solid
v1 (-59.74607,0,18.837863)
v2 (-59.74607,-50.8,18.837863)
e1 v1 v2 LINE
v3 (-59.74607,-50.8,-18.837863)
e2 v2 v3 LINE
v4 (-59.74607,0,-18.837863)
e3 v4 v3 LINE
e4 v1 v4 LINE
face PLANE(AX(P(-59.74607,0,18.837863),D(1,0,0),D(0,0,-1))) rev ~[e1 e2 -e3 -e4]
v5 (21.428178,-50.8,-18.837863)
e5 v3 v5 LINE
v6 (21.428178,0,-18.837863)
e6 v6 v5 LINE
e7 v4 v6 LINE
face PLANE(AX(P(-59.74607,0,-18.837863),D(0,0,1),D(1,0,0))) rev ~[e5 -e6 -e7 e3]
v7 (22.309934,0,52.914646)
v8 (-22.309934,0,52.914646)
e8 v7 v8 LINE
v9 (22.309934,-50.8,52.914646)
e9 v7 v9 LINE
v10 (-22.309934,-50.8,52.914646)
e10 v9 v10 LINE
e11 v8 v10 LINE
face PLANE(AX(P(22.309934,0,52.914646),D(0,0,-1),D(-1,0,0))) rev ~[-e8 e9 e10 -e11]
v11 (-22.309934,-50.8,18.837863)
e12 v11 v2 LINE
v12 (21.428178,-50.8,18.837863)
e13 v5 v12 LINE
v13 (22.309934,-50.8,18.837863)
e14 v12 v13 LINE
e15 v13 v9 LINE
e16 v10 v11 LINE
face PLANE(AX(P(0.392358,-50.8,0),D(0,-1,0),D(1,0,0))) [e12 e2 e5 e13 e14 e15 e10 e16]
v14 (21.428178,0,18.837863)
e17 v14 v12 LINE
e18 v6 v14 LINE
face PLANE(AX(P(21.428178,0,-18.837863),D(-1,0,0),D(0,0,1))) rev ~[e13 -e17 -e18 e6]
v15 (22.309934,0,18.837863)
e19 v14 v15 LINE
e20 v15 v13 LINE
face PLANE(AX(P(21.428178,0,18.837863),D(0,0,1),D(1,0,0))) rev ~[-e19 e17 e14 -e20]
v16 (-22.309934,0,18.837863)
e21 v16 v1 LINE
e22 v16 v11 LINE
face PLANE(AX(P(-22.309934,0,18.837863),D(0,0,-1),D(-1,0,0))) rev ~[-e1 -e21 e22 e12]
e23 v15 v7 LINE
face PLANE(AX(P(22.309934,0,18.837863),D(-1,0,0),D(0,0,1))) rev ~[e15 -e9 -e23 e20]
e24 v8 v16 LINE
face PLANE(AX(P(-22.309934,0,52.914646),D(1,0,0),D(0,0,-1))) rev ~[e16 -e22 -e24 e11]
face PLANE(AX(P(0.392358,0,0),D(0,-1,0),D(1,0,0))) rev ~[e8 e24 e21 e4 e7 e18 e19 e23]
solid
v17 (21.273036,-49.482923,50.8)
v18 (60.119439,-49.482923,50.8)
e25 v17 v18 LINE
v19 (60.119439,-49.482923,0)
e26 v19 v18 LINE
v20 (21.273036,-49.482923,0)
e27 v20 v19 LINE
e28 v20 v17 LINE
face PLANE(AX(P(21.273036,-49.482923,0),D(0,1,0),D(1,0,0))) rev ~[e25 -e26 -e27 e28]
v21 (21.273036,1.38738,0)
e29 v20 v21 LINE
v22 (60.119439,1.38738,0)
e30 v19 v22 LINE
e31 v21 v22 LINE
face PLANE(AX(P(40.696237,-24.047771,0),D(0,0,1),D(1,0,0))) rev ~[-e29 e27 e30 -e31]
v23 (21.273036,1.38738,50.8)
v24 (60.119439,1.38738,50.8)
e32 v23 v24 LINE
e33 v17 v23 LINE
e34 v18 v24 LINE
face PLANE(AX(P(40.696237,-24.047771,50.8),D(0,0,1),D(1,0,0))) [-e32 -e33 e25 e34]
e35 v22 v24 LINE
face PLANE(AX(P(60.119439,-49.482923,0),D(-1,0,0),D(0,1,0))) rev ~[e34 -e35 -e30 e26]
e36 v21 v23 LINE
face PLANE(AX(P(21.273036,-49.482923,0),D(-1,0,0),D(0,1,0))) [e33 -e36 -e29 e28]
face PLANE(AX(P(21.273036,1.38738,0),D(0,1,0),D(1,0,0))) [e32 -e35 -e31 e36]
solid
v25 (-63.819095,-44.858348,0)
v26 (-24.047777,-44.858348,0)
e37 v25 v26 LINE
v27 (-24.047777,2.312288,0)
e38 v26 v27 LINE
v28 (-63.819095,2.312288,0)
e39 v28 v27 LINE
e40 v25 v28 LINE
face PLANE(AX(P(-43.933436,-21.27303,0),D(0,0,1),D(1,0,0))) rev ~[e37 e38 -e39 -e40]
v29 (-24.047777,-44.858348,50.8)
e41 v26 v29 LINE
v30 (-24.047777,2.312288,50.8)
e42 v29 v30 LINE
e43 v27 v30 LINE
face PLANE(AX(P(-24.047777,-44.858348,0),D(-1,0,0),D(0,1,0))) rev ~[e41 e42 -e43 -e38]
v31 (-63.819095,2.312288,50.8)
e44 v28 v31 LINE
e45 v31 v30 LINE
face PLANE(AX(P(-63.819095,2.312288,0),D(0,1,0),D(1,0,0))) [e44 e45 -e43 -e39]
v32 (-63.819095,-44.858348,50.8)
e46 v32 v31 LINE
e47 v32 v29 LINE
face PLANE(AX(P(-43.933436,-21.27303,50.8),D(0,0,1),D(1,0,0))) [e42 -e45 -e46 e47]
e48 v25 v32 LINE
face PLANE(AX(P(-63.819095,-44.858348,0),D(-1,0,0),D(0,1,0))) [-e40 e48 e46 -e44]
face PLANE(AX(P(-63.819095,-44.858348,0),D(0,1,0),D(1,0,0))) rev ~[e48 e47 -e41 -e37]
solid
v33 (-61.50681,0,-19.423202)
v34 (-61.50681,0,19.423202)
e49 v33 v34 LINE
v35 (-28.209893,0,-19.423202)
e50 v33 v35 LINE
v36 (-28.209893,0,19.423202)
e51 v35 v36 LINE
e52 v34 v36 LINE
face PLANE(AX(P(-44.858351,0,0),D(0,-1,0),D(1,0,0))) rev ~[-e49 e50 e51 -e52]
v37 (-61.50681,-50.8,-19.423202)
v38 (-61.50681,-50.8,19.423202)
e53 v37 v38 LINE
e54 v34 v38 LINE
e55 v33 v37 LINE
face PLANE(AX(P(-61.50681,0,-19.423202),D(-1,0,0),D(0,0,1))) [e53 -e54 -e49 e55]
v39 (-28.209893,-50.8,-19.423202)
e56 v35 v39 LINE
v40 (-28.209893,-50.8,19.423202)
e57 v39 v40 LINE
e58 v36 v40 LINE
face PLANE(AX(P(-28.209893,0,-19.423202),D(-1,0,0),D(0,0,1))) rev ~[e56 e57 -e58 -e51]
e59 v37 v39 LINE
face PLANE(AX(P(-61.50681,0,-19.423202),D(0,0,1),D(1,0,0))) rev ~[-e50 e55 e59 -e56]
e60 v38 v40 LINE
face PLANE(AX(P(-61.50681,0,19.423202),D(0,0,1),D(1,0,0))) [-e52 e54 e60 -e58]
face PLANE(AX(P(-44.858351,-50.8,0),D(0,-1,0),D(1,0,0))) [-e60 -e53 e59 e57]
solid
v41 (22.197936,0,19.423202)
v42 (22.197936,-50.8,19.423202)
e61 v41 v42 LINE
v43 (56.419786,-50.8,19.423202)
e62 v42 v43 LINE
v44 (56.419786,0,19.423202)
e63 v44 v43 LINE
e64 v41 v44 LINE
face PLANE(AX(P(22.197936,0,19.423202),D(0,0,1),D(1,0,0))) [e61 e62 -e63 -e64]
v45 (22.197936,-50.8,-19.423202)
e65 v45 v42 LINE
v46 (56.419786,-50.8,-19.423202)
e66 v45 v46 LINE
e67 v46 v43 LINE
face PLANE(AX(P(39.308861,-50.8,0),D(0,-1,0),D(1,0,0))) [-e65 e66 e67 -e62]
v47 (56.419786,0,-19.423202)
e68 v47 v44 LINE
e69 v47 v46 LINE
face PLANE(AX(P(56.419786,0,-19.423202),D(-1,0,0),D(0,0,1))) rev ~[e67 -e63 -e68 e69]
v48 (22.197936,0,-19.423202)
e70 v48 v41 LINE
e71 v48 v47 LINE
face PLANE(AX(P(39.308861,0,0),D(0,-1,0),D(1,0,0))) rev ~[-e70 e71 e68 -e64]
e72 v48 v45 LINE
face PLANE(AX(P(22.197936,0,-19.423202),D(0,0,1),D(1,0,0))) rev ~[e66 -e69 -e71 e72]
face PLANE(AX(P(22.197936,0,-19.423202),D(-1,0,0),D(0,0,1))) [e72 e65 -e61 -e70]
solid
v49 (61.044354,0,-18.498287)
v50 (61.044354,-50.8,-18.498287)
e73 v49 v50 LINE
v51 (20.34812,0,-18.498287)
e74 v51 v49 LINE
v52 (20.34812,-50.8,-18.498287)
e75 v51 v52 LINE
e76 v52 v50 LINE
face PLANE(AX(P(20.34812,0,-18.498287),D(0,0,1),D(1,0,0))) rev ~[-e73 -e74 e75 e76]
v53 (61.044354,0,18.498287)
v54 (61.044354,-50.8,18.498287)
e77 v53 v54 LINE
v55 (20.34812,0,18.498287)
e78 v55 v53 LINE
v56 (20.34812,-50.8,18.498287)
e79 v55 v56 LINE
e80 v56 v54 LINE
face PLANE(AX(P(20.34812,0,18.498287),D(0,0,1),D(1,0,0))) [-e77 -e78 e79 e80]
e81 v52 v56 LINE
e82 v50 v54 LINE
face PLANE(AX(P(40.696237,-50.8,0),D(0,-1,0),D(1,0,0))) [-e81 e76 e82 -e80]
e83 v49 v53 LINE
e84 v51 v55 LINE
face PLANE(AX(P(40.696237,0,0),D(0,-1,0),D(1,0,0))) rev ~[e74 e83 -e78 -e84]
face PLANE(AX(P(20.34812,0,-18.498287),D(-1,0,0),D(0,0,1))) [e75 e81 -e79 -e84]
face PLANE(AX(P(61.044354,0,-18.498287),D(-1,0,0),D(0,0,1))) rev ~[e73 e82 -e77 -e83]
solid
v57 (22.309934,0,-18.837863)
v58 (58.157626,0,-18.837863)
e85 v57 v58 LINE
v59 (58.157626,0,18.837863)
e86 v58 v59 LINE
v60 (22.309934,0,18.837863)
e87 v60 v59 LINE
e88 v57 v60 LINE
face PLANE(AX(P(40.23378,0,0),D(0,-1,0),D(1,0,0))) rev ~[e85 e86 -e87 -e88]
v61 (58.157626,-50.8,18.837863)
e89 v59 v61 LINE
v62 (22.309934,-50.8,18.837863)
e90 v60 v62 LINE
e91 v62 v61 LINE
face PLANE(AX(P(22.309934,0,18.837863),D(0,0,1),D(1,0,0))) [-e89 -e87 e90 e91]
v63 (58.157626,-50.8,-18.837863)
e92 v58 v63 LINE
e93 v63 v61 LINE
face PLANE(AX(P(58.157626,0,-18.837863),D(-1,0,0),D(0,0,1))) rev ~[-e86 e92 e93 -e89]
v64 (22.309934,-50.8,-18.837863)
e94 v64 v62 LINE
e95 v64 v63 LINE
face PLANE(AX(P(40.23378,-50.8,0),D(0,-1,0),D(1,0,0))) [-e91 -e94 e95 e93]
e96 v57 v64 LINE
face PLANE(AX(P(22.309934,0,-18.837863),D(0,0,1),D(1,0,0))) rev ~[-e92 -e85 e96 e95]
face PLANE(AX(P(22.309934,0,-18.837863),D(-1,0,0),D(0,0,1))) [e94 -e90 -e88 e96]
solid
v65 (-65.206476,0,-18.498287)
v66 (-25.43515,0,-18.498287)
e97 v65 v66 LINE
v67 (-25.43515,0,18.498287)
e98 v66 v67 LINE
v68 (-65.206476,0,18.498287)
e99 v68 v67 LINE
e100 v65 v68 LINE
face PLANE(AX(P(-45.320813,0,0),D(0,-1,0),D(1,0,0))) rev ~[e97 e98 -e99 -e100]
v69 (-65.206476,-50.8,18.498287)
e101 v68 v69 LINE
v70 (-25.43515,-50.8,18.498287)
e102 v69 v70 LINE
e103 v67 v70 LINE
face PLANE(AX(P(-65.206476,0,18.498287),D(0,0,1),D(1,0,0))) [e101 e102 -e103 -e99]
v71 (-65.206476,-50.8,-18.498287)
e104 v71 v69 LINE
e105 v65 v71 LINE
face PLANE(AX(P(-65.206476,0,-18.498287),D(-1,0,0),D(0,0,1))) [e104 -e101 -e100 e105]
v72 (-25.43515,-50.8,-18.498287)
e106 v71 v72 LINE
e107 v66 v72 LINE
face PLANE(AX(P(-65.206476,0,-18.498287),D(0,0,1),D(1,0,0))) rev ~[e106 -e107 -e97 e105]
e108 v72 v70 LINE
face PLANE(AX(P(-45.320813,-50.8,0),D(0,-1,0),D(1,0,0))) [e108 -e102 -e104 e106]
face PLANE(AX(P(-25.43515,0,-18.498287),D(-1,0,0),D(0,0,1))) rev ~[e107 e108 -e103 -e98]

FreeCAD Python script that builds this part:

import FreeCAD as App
import Part
import Sketcher
Q = App.Units.Quantity


def add_polygon(sketch, points):
    """Adds a closed chain of lines whose ends are joined by coincident constraints."""
    first, n = sketch.GeometryCount, len(points)
    for a, b in zip(points, points[1:] + points[:1]):
        sketch.addGeometry(Part.LineSegment(App.Vector(*a, 0), App.Vector(*b, 0)), False)
    for i in range(n):
        sketch.addConstraint(Sketcher.Constraint("Coincident", first + i, 2, first + (i + 1) % n, 1))

doc = App.newDocument("Part")
body = doc.addObject("PartDesign::Body", "Body")

# Sketch on XZ plane
sketch1 = doc.addObject("Sketcher::SketchObject", "Sketch")
body.addObject(sketch1)
sketch1.AttachmentSupport = (doc.XZ_Plane, [""])
sketch1.MapMode = "FlatFace"
add_polygon(sketch1, [(22, 19), (22, -19), (58, -19), (58, 19)])  # lines 0-3
sketch1.addConstraint([
    Sketcher.Constraint("Vertical", 0),
    Sketcher.Constraint("Horizontal", 1),
    Sketcher.Constraint("Vertical", 2),
    Sketcher.Constraint("Horizontal", 3),
    Sketcher.Constraint("DistanceX", 1, 1, 1, 2, 35.847692),
    Sketcher.Constraint("DistanceY", 0, 2, 0, 1, 37.675725),
    Sketcher.Constraint("DistanceX", -1, 1, 0, 2, 22.309934),
    Sketcher.Constraint("DistanceY", 0, 2, -1, 1, 18.837863),
])
pad1 = doc.addObject("PartDesign::Pad", "Pad")
body.addObject(pad1)
pad1.Profile = sketch1
pad1.Length = Q("2 in")
body2 = doc.addObject("PartDesign::Body", "Body001")

# Sketch on XZ plane
sketch2 = doc.addObject("Sketcher::SketchObject", "Sketch001")
body2.addObject(sketch2)
sketch2.AttachmentSupport = (doc.getObject("XZ_Plane001"), [""])
sketch2.MapMode = "FlatFace"
add_polygon(sketch2, [(21.4, -18.8), (21.4, 18.8), (22.3, 18.8), (22.3, 52.9), (-22.3, 52.9), (-22.3, 18.8), (-59.7, 18.8), (-59.7, -18.8)])  # lines 0-7
sketch2.addConstraint([
    Sketcher.Constraint("Vertical", 0),
    Sketcher.Constraint("Horizontal", 1),
    Sketcher.Constraint("Vertical", 2),
    Sketcher.Constraint("Horizontal", 3),
    Sketcher.Constraint("Vertical", 4),
    Sketcher.Constraint("Horizontal", 5),
    Sketcher.Constraint("Vertical", 6),
    Sketcher.Constraint("Horizontal", 7),
    Sketcher.Constraint("Symmetric", 1, 2, 4, 2, -2),
    Sketcher.Constraint("DistanceX", 1, 1, 1, 2, 0.881755),
    Sketcher.Constraint("DistanceX", 3, 2, 3, 1, 44.619867),
    Sketcher.Constraint("DistanceX", 5, 2, 5, 1, 37.436136),
    Sketcher.Constraint("DistanceY", 0, 1, 0, 2, 37.675725),
    Sketcher.Constraint("DistanceY", 2, 1, 2, 2, 34.076783),
    Sketcher.Constraint("DistanceY", -1, 1, 0, 2, 18.837863),
])
pad2 = doc.addObject("PartDesign::Pad", "Pad001")
body2.addObject(pad2)
pad2.Profile = sketch2
pad2.Length = Q("2 in")
body3 = doc.addObject("PartDesign::Body", "Body002")

# Sketch on XZ plane
sketch3 = doc.addObject("Sketcher::SketchObject", "Sketch002")
body3.addObject(sketch3)
sketch3.AttachmentSupport = (doc.getObject("XZ_Plane002"), [""])
sketch3.MapMode = "FlatFace"
add_polygon(sketch3, [(-65, 18), (-65, -18), (-25, -18), (-25, 18)])  # lines 0-3
sketch3.addConstraint([
    Sketcher.Constraint("Vertical", 0),
    Sketcher.Constraint("Horizontal", 1),
    Sketcher.Constraint("Vertical", 2),
    Sketcher.Constraint("Horizontal", 3),
    Sketcher.Constraint("DistanceX", 1, 1, 1, 2, 39.771326),
    Sketcher.Constraint("DistanceY", 0, 2, 0, 1, 36.996573),
    Sketcher.Constraint("DistanceX", 1, 2, -1, 1, 25.43515),
    Sketcher.Constraint("DistanceY", 0, 2, -1, 1, 18.498287),
])
pad3 = doc.addObject("PartDesign::Pad", "Pad002")
body3.addObject(pad3)
pad3.Profile = sketch3
pad3.Length = Q("2 in")
body4 = doc.addObject("PartDesign::Body", "Body003")

# Sketch on XZ plane
sketch4 = doc.addObject("Sketcher::SketchObject", "Sketch003")
body4.addObject(sketch4)
sketch4.AttachmentSupport = (doc.getObject("XZ_Plane003"), [""])
sketch4.MapMode = "FlatFace"
add_polygon(sketch4, [(20, 18), (20, -18), (61, -18), (61, 18)])  # lines 0-3
sketch4.addConstraint([
    Sketcher.Constraint("Vertical", 0),
    Sketcher.Constraint("Horizontal", 1),
    Sketcher.Constraint("Vertical", 2),
    Sketcher.Constraint("Horizontal", 3),
    Sketcher.Constraint("DistanceX", 1, 1, 1, 2, 40.696234),
    Sketcher.Constraint("DistanceY", 0, 2, 0, 1, 36.996573),
    Sketcher.Constraint("DistanceX", -1, 1, 0, 2, 20.34812),
    Sketcher.Constraint("DistanceY", 0, 2, -1, 1, 18.498287),
])
pad4 = doc.addObject("PartDesign::Pad", "Pad003")
body4.addObject(pad4)
pad4.Profile = sketch4
pad4.Length = Q("2 in")
body5 = doc.addObject("PartDesign::Body", "Body004")

# Sketch on XZ plane
sketch5 = doc.addObject("Sketcher::SketchObject", "Sketch004")
body5.addObject(sketch5)
sketch5.AttachmentSupport = (doc.getObject("XZ_Plane004"), [""])
sketch5.MapMode = "FlatFace"
add_polygon(sketch5, [(-62, 19), (-62, -19), (-28, -19), (-28, 19)])  # lines 0-3
sketch5.addConstraint([
    Sketcher.Constraint("Vertical", 0),
    Sketcher.Constraint("Horizontal", 1),
    Sketcher.Constraint("Vertical", 2),
    Sketcher.Constraint("Horizontal", 3),
    Sketcher.Constraint("DistanceY", 0, 2, -1, 1, 19.423202),
    Sketcher.Constraint("DistanceY", -1, 1, 2, 2, 19.423202),
    Sketcher.Constraint("DistanceX", 1, 1, 1, 2, 33.296917),
    Sketcher.Constraint("DistanceX", 0, 2, -1, 1, 61.50681),
])
pad5 = doc.addObject("PartDesign::Pad", "Pad004")
body5.addObject(pad5)
pad5.Profile = sketch5
pad5.Length = Q("2 in")
body6 = doc.addObject("PartDesign::Body", "Body005")

# Sketch on XZ plane
sketch6 = doc.addObject("Sketcher::SketchObject", "Sketch005")
body6.addObject(sketch6)
sketch6.AttachmentSupport = (doc.getObject("XZ_Plane005"), [""])
sketch6.MapMode = "FlatFace"
add_polygon(sketch6, [(22, 19), (22, -19), (56, -19), (56, 19)])  # lines 0-3
sketch6.addConstraint([
    Sketcher.Constraint("Vertical", 0),
    Sketcher.Constraint("Horizontal", 1),
    Sketcher.Constraint("Vertical", 2),
    Sketcher.Constraint("Horizontal", 3),
    Sketcher.Constraint("DistanceX", 1, 1, 1, 2, 34.22185),
    Sketcher.Constraint("DistanceY", 0, 2, -1, 1, 19.423202),
    Sketcher.Constraint("DistanceY", -1, 1, 2, 2, 19.423202),
    Sketcher.Constraint("DistanceX", -1, 1, 0, 2, 22.197936),
])
pad6 = doc.addObject("PartDesign::Pad", "Pad005")
body6.addObject(pad6)
pad6.Profile = sketch6
pad6.Length = Q("2 in")
body7 = doc.addObject("PartDesign::Body", "Body006")

# Sketch on XY plane
sketch7 = doc.addObject("Sketcher::SketchObject", "Sketch006")
body7.addObject(sketch7)
sketch7.AttachmentSupport = (doc.getObject("XY_Plane006"), [""])
sketch7.MapMode = "FlatFace"
add_polygon(sketch7, [(21, 1), (21, -49), (60, -49), (60, 1)])  # lines 0-3
sketch7.addConstraint([
    Sketcher.Constraint("Vertical", 0),
    Sketcher.Constraint("Horizontal", 1),
    Sketcher.Constraint("Vertical", 2),
    Sketcher.Constraint("Horizontal", 3),
    Sketcher.Constraint("DistanceX", 1, 1, 1, 2, 38.846403),
    Sketcher.Constraint("DistanceY", 0, 2, 0, 1, 50.870303),
    Sketcher.Constraint("DistanceX", -1, 1, 1, 2, 60.119439),
    Sketcher.Constraint("DistanceY", -1, 1, 2, 2, 1.38738),
])
pad7 = doc.addObject("PartDesign::Pad", "Pad006")
body7.addObject(pad7)
pad7.Profile = sketch7
pad7.Length = Q("2 in")
body8 = doc.addObject("PartDesign::Body", "Body007")

# Sketch on XY plane
sketch8 = doc.addObject("Sketcher::SketchObject", "Sketch007")
body8.addObject(sketch8)
sketch8.AttachmentSupport = (doc.getObject("XY_Plane007"), [""])
sketch8.MapMode = "FlatFace"
add_polygon(sketch8, [(-64, 2), (-64, -45), (-24, -45), (-24, 2)])  # lines 0-3
sketch8.addConstraint([
    Sketcher.Constraint("Vertical", 0),
    Sketcher.Constraint("Horizontal", 1),
    Sketcher.Constraint("Vertical", 2),
    Sketcher.Constraint("Horizontal", 3),
    Sketcher.Constraint("DistanceX", 1, 1, 1, 2, Q("1.5657999 in")),
    Sketcher.Constraint("DistanceY", 0, 2, 0, 1, 47.170635),
    Sketcher.Constraint("DistanceX", 0, 2, -1, 1, 63.819095),
    Sketcher.Constraint("DistanceY", 0, 2, -1, 1, 44.858348),
])
pad8 = doc.addObject("PartDesign::Pad", "Pad007")
body8.addObject(pad8)
pad8.Profile = sketch8
pad8.Length = Q("2 in")

doc.recompute()
